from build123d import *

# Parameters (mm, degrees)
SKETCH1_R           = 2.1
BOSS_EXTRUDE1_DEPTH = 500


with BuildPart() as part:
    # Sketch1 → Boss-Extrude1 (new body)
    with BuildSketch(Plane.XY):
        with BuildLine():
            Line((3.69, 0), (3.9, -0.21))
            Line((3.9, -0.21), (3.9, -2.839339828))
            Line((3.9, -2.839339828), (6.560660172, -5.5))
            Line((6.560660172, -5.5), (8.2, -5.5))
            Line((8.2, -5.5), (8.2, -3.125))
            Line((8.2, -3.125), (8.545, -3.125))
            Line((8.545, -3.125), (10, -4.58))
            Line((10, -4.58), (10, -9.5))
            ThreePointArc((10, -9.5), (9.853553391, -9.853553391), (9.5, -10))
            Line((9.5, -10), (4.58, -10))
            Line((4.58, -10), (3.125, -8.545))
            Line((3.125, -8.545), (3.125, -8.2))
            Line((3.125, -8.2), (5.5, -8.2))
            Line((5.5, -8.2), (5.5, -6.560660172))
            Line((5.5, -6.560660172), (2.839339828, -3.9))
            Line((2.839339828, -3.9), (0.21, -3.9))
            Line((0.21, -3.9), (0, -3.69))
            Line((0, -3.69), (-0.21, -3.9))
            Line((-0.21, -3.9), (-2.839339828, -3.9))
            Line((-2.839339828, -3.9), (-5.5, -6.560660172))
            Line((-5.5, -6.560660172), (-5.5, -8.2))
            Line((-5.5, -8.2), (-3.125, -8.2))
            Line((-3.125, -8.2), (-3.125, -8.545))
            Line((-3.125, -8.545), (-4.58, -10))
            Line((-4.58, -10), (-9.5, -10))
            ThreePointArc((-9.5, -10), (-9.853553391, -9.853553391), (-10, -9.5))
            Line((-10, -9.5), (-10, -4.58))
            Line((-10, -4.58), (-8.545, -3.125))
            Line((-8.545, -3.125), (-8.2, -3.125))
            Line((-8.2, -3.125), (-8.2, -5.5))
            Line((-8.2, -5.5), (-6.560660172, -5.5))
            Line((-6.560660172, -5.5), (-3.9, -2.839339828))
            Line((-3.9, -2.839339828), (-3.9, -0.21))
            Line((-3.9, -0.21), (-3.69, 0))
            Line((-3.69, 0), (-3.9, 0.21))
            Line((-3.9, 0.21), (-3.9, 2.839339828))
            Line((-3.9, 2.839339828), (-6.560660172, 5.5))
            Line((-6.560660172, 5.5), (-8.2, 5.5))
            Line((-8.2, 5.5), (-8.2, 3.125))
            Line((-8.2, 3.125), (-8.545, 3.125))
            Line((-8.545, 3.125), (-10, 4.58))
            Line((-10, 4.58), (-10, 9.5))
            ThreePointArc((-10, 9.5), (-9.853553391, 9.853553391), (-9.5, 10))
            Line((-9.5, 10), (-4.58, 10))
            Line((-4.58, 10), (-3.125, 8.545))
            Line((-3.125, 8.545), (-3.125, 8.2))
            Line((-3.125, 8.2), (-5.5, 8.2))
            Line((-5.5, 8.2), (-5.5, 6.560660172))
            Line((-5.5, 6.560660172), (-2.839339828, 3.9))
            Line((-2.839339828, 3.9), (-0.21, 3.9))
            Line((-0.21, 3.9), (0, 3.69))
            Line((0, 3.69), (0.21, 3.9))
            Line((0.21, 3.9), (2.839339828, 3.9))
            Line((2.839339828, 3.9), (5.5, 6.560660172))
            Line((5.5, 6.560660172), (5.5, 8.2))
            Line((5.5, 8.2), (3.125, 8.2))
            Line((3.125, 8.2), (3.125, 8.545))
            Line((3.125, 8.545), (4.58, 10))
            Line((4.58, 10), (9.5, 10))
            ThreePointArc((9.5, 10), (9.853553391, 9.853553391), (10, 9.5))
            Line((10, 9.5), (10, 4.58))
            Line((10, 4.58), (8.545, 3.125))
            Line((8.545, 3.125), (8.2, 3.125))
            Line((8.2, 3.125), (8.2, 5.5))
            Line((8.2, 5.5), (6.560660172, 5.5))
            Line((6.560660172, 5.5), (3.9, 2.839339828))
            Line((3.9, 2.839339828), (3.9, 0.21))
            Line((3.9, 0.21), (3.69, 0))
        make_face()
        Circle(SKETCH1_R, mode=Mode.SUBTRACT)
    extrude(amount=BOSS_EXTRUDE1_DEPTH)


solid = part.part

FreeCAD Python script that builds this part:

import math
import FreeCAD as App
import Part
import Sketcher

doc = App.newDocument("Part")
params = doc.addObject("Spreadsheet::Sheet", "Params")
for row, (alias, value) in enumerate([
    ("sketch1_diameter", "4.2 mm"),
    ("sketch1_radius", "0.5 mm"),
    ("sketch1_width", "4.92 mm"),
    ("pad1_length", "500 mm"),
], start=1):
    params.set(f"A{row}", alias)
    params.set(f"B{row}", "=" + value)
    params.setAlias(f"B{row}", alias)

body = doc.addObject("PartDesign::Body", "Body")

sketch1 = doc.addObject("Sketcher::SketchObject", "Sketch")
body.addObject(sketch1)
sketch1.AttachmentSupport = (doc.XY_Plane, [""])
sketch1.MapMode = "FlatFace"
sketch1.addGeometry([
    Part.LineSegment(App.Vector(3.9, -0.21, 0), App.Vector(3.69, 0, 0)),
    Part.LineSegment(App.Vector(3.69, 0, 0), App.Vector(3.9, 0.21, 0)),
    Part.LineSegment(App.Vector(3.9, 0.21, 0), App.Vector(3.9, 2.84, 0)),
    Part.LineSegment(App.Vector(3.9, 2.84, 0), App.Vector(6.56, 5.5, 0)),
    Part.LineSegment(App.Vector(6.56, 5.5, 0), App.Vector(8.2, 5.5, 0)),
    Part.LineSegment(App.Vector(8.2, 5.5, 0), App.Vector(8.2, 3.12, 0)),
    Part.LineSegment(App.Vector(8.2, 3.12, 0), App.Vector(8.54, 3.12, 0)),
    Part.LineSegment(App.Vector(8.54, 3.12, 0), App.Vector(10, 4.58, 0)),
    Part.LineSegment(App.Vector(10, 4.58, 0), App.Vector(10, 9.5, 0)),
    Part.ArcOfCircle(Part.Circle(App.Vector(9.5, 9.5, 0), App.Vector(0, 0, 1), 0.5), math.radians(0), math.radians(90)),
    Part.LineSegment(App.Vector(9.5, 10, 0), App.Vector(4.58, 10, 0)),
    Part.LineSegment(App.Vector(4.58, 10, 0), App.Vector(3.12, 8.54, 0)),
    Part.LineSegment(App.Vector(3.12, 8.54, 0), App.Vector(3.12, 8.2, 0)),
    Part.LineSegment(App.Vector(3.12, 8.2, 0), App.Vector(5.5, 8.2, 0)),
    Part.LineSegment(App.Vector(5.5, 8.2, 0), App.Vector(5.5, 6.56, 0)),
    Part.LineSegment(App.Vector(5.5, 6.56, 0), App.Vector(2.84, 3.9, 0)),
    Part.LineSegment(App.Vector(2.84, 3.9, 0), App.Vector(0.21, 3.9, 0)),
    Part.LineSegment(App.Vector(0.21, 3.9, 0), App.Vector(0, 3.69, 0)),
    Part.LineSegment(App.Vector(0, 3.69, 0), App.Vector(-0.21, 3.9, 0)),
    Part.LineSegment(App.Vector(-0.21, 3.9, 0), App.Vector(-2.84, 3.9, 0)),
    Part.LineSegment(App.Vector(-2.84, 3.9, 0), App.Vector(-5.5, 6.56, 0)),
    Part.LineSegment(App.Vector(-5.5, 6.56, 0), App.Vector(-5.5, 8.2, 0)),
    Part.LineSegment(App.Vector(-5.5, 8.2, 0), App.Vector(-3.12, 8.2, 0)),
    Part.LineSegment(App.Vector(-3.12, 8.2, 0), App.Vector(-3.12, 8.54, 0)),
    Part.LineSegment(App.Vector(-3.12, 8.54, 0), App.Vector(-4.58, 10, 0)),
    Part.LineSegment(App.Vector(-4.58, 10, 0), App.Vector(-9.5, 10, 0)),
    Part.ArcOfCircle(Part.Circle(App.Vector(-9.5, 9.5, 0), App.Vector(0, 0, 1), 0.5), math.radians(90), math.radians(180)),
    Part.LineSegment(App.Vector(-10, 9.5, 0), App.Vector(-10, 4.58, 0)),
    Part.LineSegment(App.Vector(-10, 4.58, 0), App.Vector(-8.54, 3.12, 0)),
    Part.LineSegment(App.Vector(-8.54, 3.12, 0), App.Vector(-8.2, 3.12, 0)),
    Part.LineSegment(App.Vector(-8.2, 3.12, 0), App.Vector(-8.2, 5.5, 0)),
    Part.LineSegment(App.Vector(-8.2, 5.5, 0), App.Vector(-6.56, 5.5, 0)),
    Part.LineSegment(App.Vector(-6.56, 5.5, 0), App.Vector(-3.9, 2.84, 0)),
    Part.LineSegment(App.Vector(-3.9, 2.84, 0), App.Vector(-3.9, 0.21, 0)),
    Part.LineSegment(App.Vector(-3.9, 0.21, 0), App.Vector(-3.69, 0, 0)),
    Part.LineSegment(App.Vector(-3.69, 0, 0), App.Vector(-3.9, -0.21, 0)),
    Part.LineSegment(App.Vector(-3.9, -0.21, 0), App.Vector(-3.9, -2.84, 0)),
    Part.LineSegment(App.Vector(-3.9, -2.84, 0), App.Vector(-6.56, -5.5, 0)),
    Part.LineSegment(App.Vector(-6.56, -5.5, 0), App.Vector(-8.2, -5.5, 0)),
    Part.LineSegment(App.Vector(-8.2, -5.5, 0), App.Vector(-8.2, -3.12, 0)),
    Part.LineSegment(App.Vector(-8.2, -3.12, 0), App.Vector(-8.54, -3.12, 0)),
    Part.LineSegment(App.Vector(-8.54, -3.12, 0), App.Vector(-10, -4.58, 0)),
    Part.LineSegment(App.Vector(-10, -4.58, 0), App.Vector(-10, -9.5, 0)),
    Part.ArcOfCircle(Part.Circle(App.Vector(-9.5, -9.5, 0), App.Vector(0, 0, 1), 0.5), math.radians(180), math.radians(270)),
    Part.LineSegment(App.Vector(-9.5, -10, 0), App.Vector(-4.58, -10, 0)),
    Part.LineSegment(App.Vector(-4.58, -10, 0), App.Vector(-3.12, -8.54, 0)),
    Part.LineSegment(App.Vector(-3.12, -8.54, 0), App.Vector(-3.12, -8.2, 0)),
    Part.LineSegment(App.Vector(-3.12, -8.2, 0), App.Vector(-5.5, -8.2, 0)),
    Part.LineSegment(App.Vector(-5.5, -8.2, 0), App.Vector(-5.5, -6.56, 0)),
    Part.LineSegment(App.Vector(-5.5, -6.56, 0), App.Vector(-2.84, -3.9, 0)),
    Part.LineSegment(App.Vector(-2.84, -3.9, 0), App.Vector(-0.21, -3.9, 0)),
    Part.LineSegment(App.Vector(-0.21, -3.9, 0), App.Vector(0, -3.69, 0)),
    Part.LineSegment(App.Vector(0, -3.69, 0), App.Vector(0.21, -3.9, 0)),
    Part.LineSegment(App.Vector(0.21, -3.9, 0), App.Vector(2.84, -3.9, 0)),
    Part.LineSegment(App.Vector(2.84, -3.9, 0), App.Vector(5.5, -6.56, 0)),
    Part.LineSegment(App.Vector(5.5, -6.56, 0), App.Vector(5.5, -8.2, 0)),
    Part.LineSegment(App.Vector(5.5, -8.2, 0), App.Vector(3.12, -8.2, 0)),
    Part.LineSegment(App.Vector(3.12, -8.2, 0), App.Vector(3.12, -8.54, 0)),
    Part.LineSegment(App.Vector(3.12, -8.54, 0), App.Vector(4.58, -10, 0)),
    Part.LineSegment(App.Vector(4.58, -10, 0), App.Vector(9.5, -10, 0)),
    Part.ArcOfCircle(Part.Circle(App.Vector(9.5, -9.5, 0), App.Vector(0, 0, 1), 0.5), math.radians(-90), math.radians(0)),
    Part.LineSegment(App.Vector(10, -9.5, 0), App.Vector(10, -4.58, 0)),
    Part.LineSegment(App.Vector(10, -4.58, 0), App.Vector(8.54, -3.12, 0)),
    Part.LineSegment(App.Vector(8.54, -3.12, 0), App.Vector(8.2, -3.12, 0)),
    Part.LineSegment(App.Vector(8.2, -3.12, 0), App.Vector(8.2, -5.5, 0)),
    Part.LineSegment(App.Vector(8.2, -5.5, 0), App.Vector(6.56, -5.5, 0)),
    Part.LineSegment(App.Vector(6.56, -5.5, 0), App.Vector(3.9, -2.84, 0)),
    Part.LineSegment(App.Vector(3.9, -2.84, 0), App.Vector(3.9, -0.21, 0)),
    Part.Circle(App.Vector(0, 0, 0), App.Vector(0, 0, 1), 2.1),
], False)
sketch1.addConstraint([
    Sketcher.Constraint("Coincident", 0, 2, 1, 1),
    Sketcher.Constraint("Coincident", 1, 2, 2, 1),
    Sketcher.Constraint("Coincident", 2, 2, 3, 1),
    Sketcher.Constraint("Coincident", 3, 2, 4, 1),
    Sketcher.Constraint("Coincident", 4, 2, 5, 1),
    Sketcher.Constraint("Coincident", 5, 2, 6, 1),
    Sketcher.Constraint("Coincident", 6, 2, 7, 1),
    Sketcher.Constraint("Coincident", 7, 2, 8, 1),
    Sketcher.Constraint("Tangent", 8, 2, 9, 1),
    Sketcher.Constraint("Tangent", 9, 2, 10, 1),
    Sketcher.Constraint("Coincident", 10, 2, 11, 1),
    Sketcher.Constraint("Coincident", 11, 2, 12, 1),
    Sketcher.Constraint("Coincident", 12, 2, 13, 1),
    Sketcher.Constraint("Coincident", 13, 2, 14, 1),
    Sketcher.Constraint("Coincident", 14, 2, 15, 1),
    Sketcher.Constraint("Coincident", 15, 2, 16, 1),
    Sketcher.Constraint("Coincident", 16, 2, 17, 1),
    Sketcher.Constraint("Coincident", 17, 2, 18, 1),
    Sketcher.Constraint("Coincident", 18, 2, 19, 1),
    Sketcher.Constraint("Coincident", 19, 2, 20, 1),
    Sketcher.Constraint("Coincident", 20, 2, 21, 1),
    Sketcher.Constraint("Coincident", 21, 2, 22, 1),
    Sketcher.Constraint("Coincident", 22, 2, 23, 1),
    Sketcher.Constraint("Coincident", 23, 2, 24, 1),
    Sketcher.Constraint("Coincident", 24, 2, 25, 1),
    Sketcher.Constraint("Tangent", 25, 2, 26, 1),
    Sketcher.Constraint("Tangent", 26, 2, 27, 1),
    Sketcher.Constraint("Coincident", 27, 2, 28, 1),
    Sketcher.Constraint("Coincident", 28, 2, 29, 1),
    Sketcher.Constraint("Coincident", 29, 2, 30, 1),
    Sketcher.Constraint("Coincident", 30, 2, 31, 1),
    Sketcher.Constraint("Coincident", 31, 2, 32, 1),
    Sketcher.Constraint("Coincident", 32, 2, 33, 1),
    Sketcher.Constraint("Coincident", 33, 2, 34, 1),
    Sketcher.Constraint("Coincident", 34, 2, 35, 1),
    Sketcher.Constraint("Coincident", 35, 2, 36, 1),
    Sketcher.Constraint("Coincident", 36, 2, 37, 1),
    Sketcher.Constraint("Coincident", 37, 2, 38, 1),
    Sketcher.Constraint("Coincident", 38, 2, 39, 1),
    Sketcher.Constraint("Coincident", 39, 2, 40, 1),
    Sketcher.Constraint("Coincident", 40, 2, 41, 1),
    Sketcher.Constraint("Coincident", 41, 2, 42, 1),
    Sketcher.Constraint("Tangent", 42, 2, 43, 1),
    Sketcher.Constraint("Tangent", 43, 2, 44, 1),
    Sketcher.Constraint("Coincident", 44, 2, 45, 1),
    Sketcher.Constraint("Coincident", 45, 2, 46, 1),
    Sketcher.Constraint("Coincident", 46, 2, 47, 1),
    Sketcher.Constraint("Coincident", 47, 2, 48, 1),
    Sketcher.Constraint("Coincident", 48, 2, 49, 1),
    Sketcher.Constraint("Coincident", 49, 2, 50, 1),
    Sketcher.Constraint("Coincident", 50, 2, 51, 1),
    Sketcher.Constraint("Coincident", 51, 2, 52, 1),
    Sketcher.Constraint("Coincident", 52, 2, 53, 1),
    Sketcher.Constraint("Coincident", 53, 2, 54, 1),
    Sketcher.Constraint("Coincident", 54, 2, 55, 1),
    Sketcher.Constraint("Coincident", 55, 2, 56, 1),
    Sketcher.Constraint("Coincident", 56, 2, 57, 1),
    Sketcher.Constraint("Coincident", 57, 2, 58, 1),
    Sketcher.Constraint("Coincident", 58, 2, 59, 1),
    Sketcher.Constraint("Tangent", 59, 2, 60, 1),
    Sketcher.Constraint("Tangent", 60, 2, 61, 1),
    Sketcher.Constraint("Coincident", 61, 2, 62, 1),
    Sketcher.Constraint("Coincident", 62, 2, 63, 1),
    Sketcher.Constraint("Coincident", 63, 2, 64, 1),
    Sketcher.Constraint("Coincident", 64, 2, 65, 1),
    Sketcher.Constraint("Coincident", 65, 2, 66, 1),
    Sketcher.Constraint("Coincident", 66, 2, 67, 1),
    Sketcher.Constraint("Coincident", 67, 2, 0, 1),
    Sketcher.Constraint("Vertical", 2),
    Sketcher.Constraint("Horizontal", 4),
    Sketcher.Constraint("Vertical", 5),
    Sketcher.Constraint("Horizontal", 6),
    Sketcher.Constraint("Vertical", 8),
    Sketcher.Constraint("Horizontal", 10),
    Sketcher.Constraint("Vertical", 12),
    Sketcher.Constraint("Horizontal", 13),
    Sketcher.Constraint("Vertical", 14),
    Sketcher.Constraint("Horizontal", 16),
    Sketcher.Constraint("Horizontal", 19),
    Sketcher.Constraint("Vertical", 21),
    Sketcher.Constraint("Horizontal", 22),
    Sketcher.Constraint("Vertical", 23),
    Sketcher.Constraint("Horizontal", 25),
    Sketcher.Constraint("Vertical", 27),
    Sketcher.Constraint("Horizontal", 29),
    Sketcher.Constraint("Vertical", 30),
    Sketcher.Constraint("Horizontal", 31),
    Sketcher.Constraint("Vertical", 33),
    Sketcher.Constraint("Vertical", 36),
    Sketcher.Constraint("Horizontal", 38),
    Sketcher.Constraint("Vertical", 39),
    Sketcher.Constraint("Horizontal", 40),
    Sketcher.Constraint("Vertical", 42),
    Sketcher.Constraint("Horizontal", 44),
    Sketcher.Constraint("Vertical", 46),
    Sketcher.Constraint("Horizontal", 47),
    Sketcher.Constraint("Vertical", 48),
    Sketcher.Constraint("Horizontal", 50),
    Sketcher.Constraint("Horizontal", 53),
    Sketcher.Constraint("Vertical", 55),
    Sketcher.Constraint("Horizontal", 56),
    Sketcher.Constraint("Vertical", 57),
    Sketcher.Constraint("Horizontal", 59),
    Sketcher.Constraint("Vertical", 61),
    Sketcher.Constraint("Horizontal", 63),
    Sketcher.Constraint("Vertical", 64),
    Sketcher.Constraint("Horizontal", 65),
    Sketcher.Constraint("Vertical", 67),
    Sketcher.Constraint("Coincident", 68, 3, -1, 1),
    Sketcher.Constraint("Equal", 9, 26),
    Sketcher.Constraint("Equal", 26, 43),
    Sketcher.Constraint("Equal", 43, 60),
    Sketcher.Constraint("Symmetric", 9, 3, 43, 3, -1, 1),
    Sketcher.Constraint("Symmetric", 26, 3, 60, 3, -1, 1),
    Sketcher.Constraint("Symmetric", 0, 2, 34, 2, -1, 1),
    Sketcher.Constraint("Symmetric", 1, 2, 35, 2, -1, 1),
    Sketcher.Constraint("Symmetric", 3, 2, 37, 2, -1, 1),
    Sketcher.Constraint("Symmetric", 5, 2, 39, 2, -1, 1),
    Sketcher.Constraint("Symmetric", 11, 2, 45, 2, -1, 1),
    Sketcher.Constraint("Symmetric", 13, 2, 47, 2, -1, 1),
    Sketcher.Constraint("Symmetric", 15, 2, 49, 2, -1, 1),
    Sketcher.Constraint("Symmetric", 17, 2, 51, 2, -1, 1),
    Sketcher.Constraint("Symmetric", 18, 2, 52, 2, -1, 1),
    Sketcher.Constraint("Symmetric", 20, 2, 54, 2, -1, 1),
    Sketcher.Constraint("Symmetric", 22, 2, 56, 2, -1, 1),
    Sketcher.Constraint("Symmetric", 28, 2, 62, 2, -1, 1),
    Sketcher.Constraint("Symmetric", 30, 2, 64, 2, -1, 1),
    Sketcher.Constraint("Symmetric", 32, 2, 66, 2, -1, 1),
    Sketcher.Constraint("Symmetric", 9, 3, 26, 3, -2),
    Sketcher.Constraint("Symmetric", 16, 2, 18, 2, -2),
    Sketcher.Constraint("Symmetric", 14, 2, 20, 2, -2),
    Sketcher.Constraint("Symmetric", 12, 2, 22, 2, -2),
    Sketcher.Constraint("Symmetric", 6, 2, 28, 2, -2),
    Sketcher.Constraint("Symmetric", 4, 2, 30, 2, -2),
    Sketcher.Constraint("Symmetric", 2, 2, 32, 2, -2),
    Sketcher.Constraint("PointOnObject", 0, 2, -1),
    Sketcher.Constraint("PointOnObject", 17, 2, -2),
    Sketcher.Constraint("Perpendicular", 0, 1),
    Sketcher.Constraint("Parallel", 1, 3),
    Sketcher.Constraint("Parallel", 3, 7),
    Sketcher.Constraint("Parallel", 7, 11),
    Sketcher.Constraint("Parallel", 11, 15),
    Sketcher.Constraint("Parallel", 15, 17),
    Sketcher.Constraint("Perpendicular", 17, 18),
    Sketcher.Constraint("Parallel", 18, 20),
    Sketcher.Constraint("Parallel", 20, 24),
    Sketcher.Constraint("Parallel", 24, 28),
    Sketcher.Constraint("Parallel", 28, 32),
    Sketcher.Constraint("Parallel", 32, 34),
    Sketcher.Constraint("Parallel", 35, 37),
    Sketcher.Constraint("Parallel", 37, 41),
    Sketcher.Constraint("Parallel", 41, 45),
    Sketcher.Constraint("Parallel", 45, 49),
    Sketcher.Constraint("Parallel", 49, 51),
    Sketcher.Constraint("Parallel", 52, 54),
    Sketcher.Constraint("Parallel", 54, 58),
    Sketcher.Constraint("Parallel", 58, 62),
    Sketcher.Constraint("Parallel", 62, 66),
    Sketcher.Constraint("Horizontal", 11, 2, 23, 2),
    Sketcher.Constraint("Horizontal", 45, 2, 57, 2),
    Sketcher.Constraint("Horizontal", 41, 2, 61, 2),
    Sketcher.Constraint("Equal", 53, 2),
    Sketcher.Constraint("Equal", 56, 5),
    Sketcher.Constraint("Equal", 59, 8),
    Sketcher.Constraint("Equal", 63, 12),
    Sketcher.Constraint("Equal", 65, 14),
    Sketcher.Constraint("Equal", 7, 11),
    Sketcher.Constraint("Equal", 3, 15),
    Sketcher.Constraint("Equal", 1, 17),
    Sketcher.Constraint("Diameter", 68, 4.2),
    Sketcher.Constraint("Radius", 9, 0.5),
    Sketcher.Constraint("DistanceX", -1, 1, 7, 2, 10.0),
    Sketcher.Constraint("DistanceX", 10, 2, 10, 1, 4.92),
    Sketcher.Constraint("DistanceX", -1, 1, 1, 2, 3.9),
    Sketcher.Constraint("DistanceY", -1, 1, 3, 2, 5.5),
    Sketcher.Constraint("DistanceX", -1, 1, 4, 2, 8.2),
    Sketcher.Constraint("DistanceX", 6, 1, 6, 2, 0.345),
    Sketcher.Constraint("DistanceX", -1, 1, 0, 2, 3.69),
    Sketcher.Constraint("DistanceX", 4, 1, 4, 2, 1.63934),
])
sketch1.setExpression("Constraints[169]", "Params.sketch1_diameter")
sketch1.setExpression("Constraints[170]", "Params.sketch1_radius")
sketch1.setExpression("Constraints[172]", "Params.sketch1_width")
pad1 = doc.addObject("PartDesign::Pad", "Pad")
body.addObject(pad1)
pad1.Profile = sketch1
pad1.setExpression("Length", "Params.pad1_length")

doc.recompute()
